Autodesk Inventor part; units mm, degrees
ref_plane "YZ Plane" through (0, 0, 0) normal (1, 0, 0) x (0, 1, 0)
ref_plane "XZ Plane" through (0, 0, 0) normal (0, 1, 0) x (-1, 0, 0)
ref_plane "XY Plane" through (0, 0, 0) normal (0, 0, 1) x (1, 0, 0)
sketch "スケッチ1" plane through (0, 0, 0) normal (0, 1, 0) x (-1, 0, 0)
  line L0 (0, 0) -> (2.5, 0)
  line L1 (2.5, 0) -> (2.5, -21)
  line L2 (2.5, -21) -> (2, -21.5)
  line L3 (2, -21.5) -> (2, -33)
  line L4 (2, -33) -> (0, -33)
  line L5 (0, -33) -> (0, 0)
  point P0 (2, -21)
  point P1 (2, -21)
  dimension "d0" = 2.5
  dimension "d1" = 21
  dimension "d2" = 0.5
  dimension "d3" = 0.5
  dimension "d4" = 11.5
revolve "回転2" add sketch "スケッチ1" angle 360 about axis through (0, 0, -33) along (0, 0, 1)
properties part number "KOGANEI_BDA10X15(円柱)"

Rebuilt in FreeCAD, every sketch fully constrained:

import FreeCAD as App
import Part
import Sketcher

V = App.Vector


def add_polygon(sketch, points):
    """Adds a closed chain of lines whose ends are joined by coincident constraints."""
    first, n = sketch.GeometryCount, len(points)
    for a, b in zip(points, points[1:] + points[:1]):
        sketch.addGeometry(Part.LineSegment(App.Vector(*a, 0), App.Vector(*b, 0)), False)
    for i in range(n):
        sketch.addConstraint(Sketcher.Constraint("Coincident", first + i, 2, first + (i + 1) % n, 1))

doc = App.newDocument("Part")
body = doc.addObject("PartDesign::Body", "Body")

sketch1 = body.newObject("Sketcher::SketchObject", "Sketch")
sketch1.AttachmentSupport = (doc.getObject("XZ_Plane"), [""])
sketch1.MapMode = "FlatFace"
add_polygon(sketch1, [(-2.5, 0), (0, 0), (0, -33), (-2, -33), (-2, -21.5), (-2.5, -21)])
sketch1.addConstraint([
    Sketcher.Constraint("Horizontal", 0),
    Sketcher.Constraint("Vertical", 1),
    Sketcher.Constraint("Horizontal", 2),
    Sketcher.Constraint("Vertical", 3),
    Sketcher.Constraint("Vertical", 5),
    Sketcher.Constraint("Coincident", 0, 2, -1, 1),
    Sketcher.Constraint("DistanceY", 5, 1, 5, 2, 21.0),
    Sketcher.Constraint("DistanceX", 0, 1, 0, 2, 2.5),
    Sketcher.Constraint("DistanceY", 3, 1, 3, 2, 11.5),
    Sketcher.Constraint("DistanceX", 4, 2, 3, 2, 0.5),
    Sketcher.Constraint("DistanceY", 3, 2, 4, 2, 0.5),
])
revolution = body.newObject("PartDesign::Revolution", "Revolution")
revolution.Profile = sketch1
revolution.ReferenceAxis = (sketch1, ["V_Axis"])
revolution.Angle = 360

doc.recompute()
